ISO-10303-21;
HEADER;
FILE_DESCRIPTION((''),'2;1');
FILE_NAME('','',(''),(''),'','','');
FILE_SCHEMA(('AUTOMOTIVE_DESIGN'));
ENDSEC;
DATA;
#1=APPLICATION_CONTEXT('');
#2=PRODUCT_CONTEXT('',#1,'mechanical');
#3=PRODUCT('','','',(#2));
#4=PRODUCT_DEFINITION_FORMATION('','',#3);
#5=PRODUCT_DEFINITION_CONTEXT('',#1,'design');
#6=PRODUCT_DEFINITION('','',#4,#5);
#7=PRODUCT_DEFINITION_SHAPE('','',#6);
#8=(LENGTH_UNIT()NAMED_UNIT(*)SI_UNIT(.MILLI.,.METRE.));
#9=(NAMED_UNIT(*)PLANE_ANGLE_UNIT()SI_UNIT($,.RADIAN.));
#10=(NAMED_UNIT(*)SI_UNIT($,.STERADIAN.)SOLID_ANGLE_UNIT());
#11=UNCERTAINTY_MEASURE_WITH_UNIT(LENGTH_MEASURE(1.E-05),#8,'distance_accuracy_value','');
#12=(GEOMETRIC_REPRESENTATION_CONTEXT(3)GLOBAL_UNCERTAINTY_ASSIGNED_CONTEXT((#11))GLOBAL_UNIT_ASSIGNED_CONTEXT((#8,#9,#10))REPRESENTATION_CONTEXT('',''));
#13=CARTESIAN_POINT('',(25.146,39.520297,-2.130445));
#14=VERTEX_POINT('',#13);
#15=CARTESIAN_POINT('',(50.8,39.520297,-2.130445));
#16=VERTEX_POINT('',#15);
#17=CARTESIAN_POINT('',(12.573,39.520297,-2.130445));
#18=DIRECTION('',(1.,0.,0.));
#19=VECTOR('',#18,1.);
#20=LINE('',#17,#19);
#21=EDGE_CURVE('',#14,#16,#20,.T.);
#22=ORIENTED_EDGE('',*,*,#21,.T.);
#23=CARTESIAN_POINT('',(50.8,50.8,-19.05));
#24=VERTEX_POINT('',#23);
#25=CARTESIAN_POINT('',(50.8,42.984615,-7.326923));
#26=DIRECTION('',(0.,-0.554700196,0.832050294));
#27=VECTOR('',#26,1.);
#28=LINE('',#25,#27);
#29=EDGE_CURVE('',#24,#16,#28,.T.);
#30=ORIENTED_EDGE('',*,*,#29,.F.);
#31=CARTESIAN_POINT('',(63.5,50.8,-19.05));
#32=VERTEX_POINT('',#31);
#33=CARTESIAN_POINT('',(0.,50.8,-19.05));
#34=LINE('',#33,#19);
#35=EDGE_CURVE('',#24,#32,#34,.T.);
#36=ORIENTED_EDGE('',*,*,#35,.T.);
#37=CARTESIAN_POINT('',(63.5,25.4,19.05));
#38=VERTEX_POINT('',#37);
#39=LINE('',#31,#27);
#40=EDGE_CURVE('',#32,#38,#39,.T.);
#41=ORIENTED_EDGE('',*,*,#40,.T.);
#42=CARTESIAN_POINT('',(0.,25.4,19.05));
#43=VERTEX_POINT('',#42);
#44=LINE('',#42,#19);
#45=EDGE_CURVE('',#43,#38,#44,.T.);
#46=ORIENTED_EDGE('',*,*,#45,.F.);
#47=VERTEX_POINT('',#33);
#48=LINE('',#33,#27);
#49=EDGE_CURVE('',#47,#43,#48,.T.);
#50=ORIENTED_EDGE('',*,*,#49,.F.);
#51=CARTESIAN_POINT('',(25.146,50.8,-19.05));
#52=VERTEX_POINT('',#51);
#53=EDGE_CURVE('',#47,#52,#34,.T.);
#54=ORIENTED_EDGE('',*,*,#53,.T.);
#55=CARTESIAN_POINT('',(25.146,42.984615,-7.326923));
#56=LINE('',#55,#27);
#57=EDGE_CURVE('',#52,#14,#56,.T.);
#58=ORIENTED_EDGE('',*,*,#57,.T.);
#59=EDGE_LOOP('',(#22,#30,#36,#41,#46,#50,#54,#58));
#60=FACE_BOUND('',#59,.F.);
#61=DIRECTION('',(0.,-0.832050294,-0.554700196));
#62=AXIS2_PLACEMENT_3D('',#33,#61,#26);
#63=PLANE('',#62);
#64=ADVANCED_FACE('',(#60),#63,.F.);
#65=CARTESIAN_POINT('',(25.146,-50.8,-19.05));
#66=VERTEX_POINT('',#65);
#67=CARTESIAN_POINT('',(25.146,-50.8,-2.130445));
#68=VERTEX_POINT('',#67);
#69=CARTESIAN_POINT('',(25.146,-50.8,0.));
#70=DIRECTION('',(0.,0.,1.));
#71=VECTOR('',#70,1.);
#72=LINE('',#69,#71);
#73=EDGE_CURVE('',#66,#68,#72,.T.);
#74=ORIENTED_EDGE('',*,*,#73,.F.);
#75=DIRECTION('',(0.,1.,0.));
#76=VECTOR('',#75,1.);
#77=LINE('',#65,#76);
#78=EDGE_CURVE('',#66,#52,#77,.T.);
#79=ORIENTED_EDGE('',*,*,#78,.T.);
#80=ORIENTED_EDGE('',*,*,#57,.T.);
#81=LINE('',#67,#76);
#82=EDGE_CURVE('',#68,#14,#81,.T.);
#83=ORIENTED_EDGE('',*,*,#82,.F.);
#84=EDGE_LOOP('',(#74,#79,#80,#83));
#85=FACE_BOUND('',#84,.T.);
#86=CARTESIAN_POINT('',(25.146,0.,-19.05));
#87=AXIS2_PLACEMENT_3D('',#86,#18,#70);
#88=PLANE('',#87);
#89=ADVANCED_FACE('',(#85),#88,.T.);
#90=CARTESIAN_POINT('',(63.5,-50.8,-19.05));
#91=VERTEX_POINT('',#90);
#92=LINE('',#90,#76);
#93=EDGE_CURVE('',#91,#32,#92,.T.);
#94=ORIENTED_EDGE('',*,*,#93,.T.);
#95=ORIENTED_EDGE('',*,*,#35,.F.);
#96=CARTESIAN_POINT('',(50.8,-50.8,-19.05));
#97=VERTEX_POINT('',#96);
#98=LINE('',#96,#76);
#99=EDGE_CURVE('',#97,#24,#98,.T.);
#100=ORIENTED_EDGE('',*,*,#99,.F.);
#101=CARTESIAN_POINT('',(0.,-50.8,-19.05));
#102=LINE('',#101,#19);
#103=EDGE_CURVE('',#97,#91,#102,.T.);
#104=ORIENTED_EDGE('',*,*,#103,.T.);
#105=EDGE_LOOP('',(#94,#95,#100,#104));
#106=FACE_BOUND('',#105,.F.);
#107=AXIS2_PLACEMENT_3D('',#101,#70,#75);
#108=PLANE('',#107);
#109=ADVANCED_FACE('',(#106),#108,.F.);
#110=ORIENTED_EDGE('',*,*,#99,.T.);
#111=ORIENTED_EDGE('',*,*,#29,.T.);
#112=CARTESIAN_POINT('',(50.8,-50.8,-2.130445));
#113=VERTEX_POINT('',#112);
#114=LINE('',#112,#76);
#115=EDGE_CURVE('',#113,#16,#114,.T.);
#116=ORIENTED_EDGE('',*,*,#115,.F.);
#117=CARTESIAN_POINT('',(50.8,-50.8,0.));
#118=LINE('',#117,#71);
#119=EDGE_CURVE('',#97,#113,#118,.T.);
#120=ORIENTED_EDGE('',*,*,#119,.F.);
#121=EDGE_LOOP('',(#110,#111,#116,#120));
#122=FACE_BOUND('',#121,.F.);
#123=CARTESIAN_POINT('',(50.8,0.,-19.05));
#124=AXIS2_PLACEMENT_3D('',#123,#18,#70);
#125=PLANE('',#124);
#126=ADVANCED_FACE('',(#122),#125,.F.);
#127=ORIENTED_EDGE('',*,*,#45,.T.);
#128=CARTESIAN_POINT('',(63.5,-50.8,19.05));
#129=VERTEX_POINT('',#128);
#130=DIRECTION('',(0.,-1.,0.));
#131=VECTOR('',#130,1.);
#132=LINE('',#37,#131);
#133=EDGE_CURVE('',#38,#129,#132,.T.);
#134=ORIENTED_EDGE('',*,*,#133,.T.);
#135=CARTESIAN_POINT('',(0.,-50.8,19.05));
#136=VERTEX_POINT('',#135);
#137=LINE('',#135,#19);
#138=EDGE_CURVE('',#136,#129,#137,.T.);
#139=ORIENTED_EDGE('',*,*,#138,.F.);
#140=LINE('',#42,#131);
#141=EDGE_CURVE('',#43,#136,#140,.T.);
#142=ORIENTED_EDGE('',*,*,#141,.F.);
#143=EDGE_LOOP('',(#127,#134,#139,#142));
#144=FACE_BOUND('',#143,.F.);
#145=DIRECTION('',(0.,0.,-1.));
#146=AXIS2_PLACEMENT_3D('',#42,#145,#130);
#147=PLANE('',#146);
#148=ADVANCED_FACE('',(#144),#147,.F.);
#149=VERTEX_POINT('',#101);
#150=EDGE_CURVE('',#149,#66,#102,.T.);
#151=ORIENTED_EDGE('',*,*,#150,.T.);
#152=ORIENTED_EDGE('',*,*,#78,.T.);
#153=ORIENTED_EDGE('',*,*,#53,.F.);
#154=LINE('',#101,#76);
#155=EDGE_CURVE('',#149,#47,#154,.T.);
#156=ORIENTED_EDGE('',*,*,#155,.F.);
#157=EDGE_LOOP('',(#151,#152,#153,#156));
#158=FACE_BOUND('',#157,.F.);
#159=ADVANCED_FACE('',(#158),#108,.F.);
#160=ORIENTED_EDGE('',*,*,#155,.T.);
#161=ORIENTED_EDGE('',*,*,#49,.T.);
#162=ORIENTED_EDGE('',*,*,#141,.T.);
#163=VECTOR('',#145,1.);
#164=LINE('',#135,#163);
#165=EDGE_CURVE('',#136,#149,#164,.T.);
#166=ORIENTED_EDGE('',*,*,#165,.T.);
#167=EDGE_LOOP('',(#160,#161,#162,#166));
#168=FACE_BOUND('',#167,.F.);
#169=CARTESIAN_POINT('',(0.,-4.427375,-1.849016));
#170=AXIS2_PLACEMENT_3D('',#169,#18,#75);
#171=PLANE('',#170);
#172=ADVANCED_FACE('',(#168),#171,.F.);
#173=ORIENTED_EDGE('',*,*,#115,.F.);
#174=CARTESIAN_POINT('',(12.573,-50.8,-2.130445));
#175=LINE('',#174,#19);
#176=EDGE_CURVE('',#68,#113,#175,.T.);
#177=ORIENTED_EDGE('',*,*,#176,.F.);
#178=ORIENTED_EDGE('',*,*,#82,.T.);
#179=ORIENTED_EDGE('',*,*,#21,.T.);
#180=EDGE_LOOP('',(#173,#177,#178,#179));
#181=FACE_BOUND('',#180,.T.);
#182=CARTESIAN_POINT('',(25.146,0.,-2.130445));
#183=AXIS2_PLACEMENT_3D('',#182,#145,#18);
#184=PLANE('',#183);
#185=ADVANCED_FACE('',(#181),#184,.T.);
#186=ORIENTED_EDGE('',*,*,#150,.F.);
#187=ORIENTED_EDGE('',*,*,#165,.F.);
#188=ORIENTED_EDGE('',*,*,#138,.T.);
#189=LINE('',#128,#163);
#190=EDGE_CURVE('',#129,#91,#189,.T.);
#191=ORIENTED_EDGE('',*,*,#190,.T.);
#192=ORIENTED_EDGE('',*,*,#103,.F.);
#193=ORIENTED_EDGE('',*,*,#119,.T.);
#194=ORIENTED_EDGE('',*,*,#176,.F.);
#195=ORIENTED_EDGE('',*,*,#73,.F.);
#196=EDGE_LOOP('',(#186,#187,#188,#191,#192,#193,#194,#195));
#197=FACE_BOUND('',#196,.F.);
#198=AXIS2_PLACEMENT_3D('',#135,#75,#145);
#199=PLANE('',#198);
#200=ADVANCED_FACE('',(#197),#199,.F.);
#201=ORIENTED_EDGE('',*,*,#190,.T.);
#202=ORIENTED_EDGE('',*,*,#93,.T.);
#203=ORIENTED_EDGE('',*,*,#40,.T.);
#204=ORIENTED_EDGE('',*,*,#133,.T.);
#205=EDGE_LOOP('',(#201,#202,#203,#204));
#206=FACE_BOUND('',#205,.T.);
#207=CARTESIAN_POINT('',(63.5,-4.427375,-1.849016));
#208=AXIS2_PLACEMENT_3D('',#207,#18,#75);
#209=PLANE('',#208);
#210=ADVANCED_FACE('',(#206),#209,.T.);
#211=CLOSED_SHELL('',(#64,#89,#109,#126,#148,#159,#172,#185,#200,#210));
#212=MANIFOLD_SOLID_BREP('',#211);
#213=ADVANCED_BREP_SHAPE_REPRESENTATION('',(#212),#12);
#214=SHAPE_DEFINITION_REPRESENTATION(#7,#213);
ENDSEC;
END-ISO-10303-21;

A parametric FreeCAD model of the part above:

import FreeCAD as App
import Part
import Sketcher
from FreeCAD import Vector
Q = App.Units.Quantity


def add_polygon(sketch, points):
    """Adds a closed chain of lines whose ends are joined by coincident constraints."""
    first, n = sketch.GeometryCount, len(points)
    for a, b in zip(points, points[1:] + points[:1]):
        sketch.addGeometry(Part.LineSegment(App.Vector(*a, 0), App.Vector(*b, 0)), False)
    for i in range(n):
        sketch.addConstraint(Sketcher.Constraint("Coincident", first + i, 2, first + (i + 1) % n, 1))

doc = App.newDocument("Part")
body = doc.addObject("PartDesign::Body", "Body")

# Sketch on YZ plane
sketch1 = body.newObject("Sketcher::SketchObject", "Sketch")
sketch1.AttachmentSupport = (doc.getObject("YZ_Plane"), [""])
sketch1.MapMode = "FlatFace"
add_polygon(sketch1, [(25, 19), (-51, 19), (-51, -19), (51, -19)])  # lines 0-3
sketch1.addConstraint([
    Sketcher.Constraint("Horizontal", 0),
    Sketcher.Constraint("Vertical", 1),
    Sketcher.Constraint("Horizontal", 2),
    Sketcher.Constraint("Symmetric", 0, 2, 2, 2, -1, 1),
    Sketcher.Constraint("DistanceX", 0, 2, 0, 1, Q("3 in")),
    Sketcher.Constraint("DistanceX", 2, 1, 2, 2, Q("4 in")),
    Sketcher.Constraint("DistanceY", 1, 2, 1, 1, Q("1.5 in")),
])
pad1 = body.newObject("PartDesign::Pad", "Pad")
pad1.Profile = sketch1
pad1.Length = Q("2.5 in")

# Sketch on XZ plane
sketch2 = body.newObject("Sketcher::SketchObject", "Sketch001")
sketch2.AttachmentSupport = (doc.getObject("XZ_Plane"), [""])
sketch2.MapMode = "FlatFace"
add_polygon(sketch2, [(25, -2), (25, -19), (51, -19), (51, -2)])  # lines 0-3
sketch2.addConstraint([
    Sketcher.Constraint("Vertical", 0),
    Sketcher.Constraint("Horizontal", 1),
    Sketcher.Constraint("Vertical", 2),
    Sketcher.Constraint("Horizontal", 3),
    Sketcher.Constraint("DistanceX", -1, 1, 1, 2, Q("2 in")),
    Sketcher.Constraint("DistanceX", 1, 1, 1, 2, Q("1.01 in")),
    Sketcher.Constraint("DistanceY", 0, 2, -1, 1, Q("0.75 in")),
    Sketcher.Constraint("DistanceY", 0, 2, 0, 1, Q("16.919555 mm")),
])
pocket1 = body.newObject("PartDesign::Pocket", "Pocket")
pocket1.Profile = sketch2
pocket1.Type = "ThroughAll"
pocket1.Midplane = True

doc.recompute()
